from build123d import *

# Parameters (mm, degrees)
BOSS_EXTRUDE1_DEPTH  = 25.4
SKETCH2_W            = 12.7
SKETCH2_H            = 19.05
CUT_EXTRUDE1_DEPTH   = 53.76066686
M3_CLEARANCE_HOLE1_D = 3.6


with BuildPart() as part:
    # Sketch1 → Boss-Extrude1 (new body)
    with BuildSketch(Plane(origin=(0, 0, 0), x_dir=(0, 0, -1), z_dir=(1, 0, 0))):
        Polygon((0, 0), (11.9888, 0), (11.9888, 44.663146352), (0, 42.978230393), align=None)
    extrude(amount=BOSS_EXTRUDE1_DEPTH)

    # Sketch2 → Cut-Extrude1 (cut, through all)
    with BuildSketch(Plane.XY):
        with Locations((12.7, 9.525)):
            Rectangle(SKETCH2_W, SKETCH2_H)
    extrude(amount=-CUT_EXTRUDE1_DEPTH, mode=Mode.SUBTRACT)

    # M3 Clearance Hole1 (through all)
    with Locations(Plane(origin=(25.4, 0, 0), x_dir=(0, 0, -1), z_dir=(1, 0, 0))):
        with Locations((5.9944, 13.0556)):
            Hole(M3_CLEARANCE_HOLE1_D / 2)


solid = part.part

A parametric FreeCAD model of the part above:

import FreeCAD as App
import Part
import Sketcher
from FreeCAD import Vector
Q = App.Units.Quantity


def add_polygon(sketch, points):
    """Adds a closed chain of lines whose ends are joined by coincident constraints."""
    first, n = sketch.GeometryCount, len(points)
    for a, b in zip(points, points[1:] + points[:1]):
        sketch.addGeometry(Part.LineSegment(App.Vector(*a, 0), App.Vector(*b, 0)), False)
    for i in range(n):
        sketch.addConstraint(Sketcher.Constraint("Coincident", first + i, 2, first + (i + 1) % n, 1))

doc = App.newDocument("Part")
body = doc.addObject("PartDesign::Body", "Body")

# Sketch on YZ plane
sketch1 = body.newObject("Sketcher::SketchObject", "Sketch")
sketch1.AttachmentSupport = (doc.getObject("YZ_Plane"), [""])
sketch1.MapMode = "FlatFace"
add_polygon(sketch1, [(0, 0), (0, -12), (45, -12), (43, 0)])  # lines 0-3
sketch1.addConstraint(Sketcher.Constraint("Vertical", 0))
sketch1.addConstraint(Sketcher.Constraint("Horizontal", 1))
sketch1.addConstraint(Sketcher.Constraint("Horizontal", 3))
sketch1.addConstraint(Sketcher.Constraint("Coincident", 3, 2, -1, 1))
sketch1.addConstraint(Sketcher.Constraint("Angle", 2, Q("98 deg")))
sketch1.addConstraint(Sketcher.Constraint("DistanceY", 0, 2, 0, 1, Q("0.472 in")))
sketch1.addConstraint(Sketcher.Constraint("DistanceX", 3, 2, 3, 1, Q("42.97823 mm")))
pad1 = body.newObject("PartDesign::Pad", "Pad")
pad1.Profile = sketch1
pad1.Length = Q("1 in")

# Sketch on XY plane
sketch2 = body.newObject("Sketcher::SketchObject", "Sketch001")
sketch2.AttachmentSupport = (doc.getObject("XY_Plane"), [""])
sketch2.MapMode = "FlatFace"
add_polygon(sketch2, [(6, 19), (6, 0), (19, 0), (19, 19)])  # lines 0-3
sketch2.addConstraint(Sketcher.Constraint("Vertical", 0))
sketch2.addConstraint(Sketcher.Constraint("Horizontal", 1))
sketch2.addConstraint(Sketcher.Constraint("Vertical", 2))
sketch2.addConstraint(Sketcher.Constraint("Horizontal", 3))
sketch2.addConstraint(Sketcher.Constraint("PointOnObject", 0, 2, -1))
sketch2.addConstraint(Sketcher.Constraint("DistanceX", 1, 1, 1, 2, Q("0.5 in")))
sketch2.addConstraint(Sketcher.Constraint("DistanceY", 0, 2, 0, 1, Q("0.75 in")))
sketch2.addConstraint(Sketcher.Constraint("DistanceX", -1, 1, 0, 2, Q("0.25 in")))
pocket1 = body.newObject("PartDesign::Pocket", "Pocket")
pocket1.Profile = sketch2
pocket1.Type = "ThroughAll"

# Sketch on YZ plane
sketch3 = body.newObject("Sketcher::SketchObject", "Sketch002")
sketch3.AttachmentSupport = (doc.getObject("YZ_Plane"), [""])
sketch3.MapMode = "FlatFace"
sketch3.AttachmentOffset = App.Placement(Vector(0, 0, 1 * 25.4), App.Rotation())
sketch3.addGeometry(Part.Circle(Vector(13.1, -6, 0), Vector(0, 0, 1), 1.8), False)
sketch3.addConstraint(Sketcher.Constraint("Diameter", 0, Q("3.6 mm")))
sketch3.addConstraint(Sketcher.Constraint("DistanceX", -1, 1, 0, 3, Q("0.514 in")))
sketch3.addConstraint(Sketcher.Constraint("DistanceY", 0, 3, -1, 1, Q("0.236 in")))
doc.recompute()
hole = body.newObject("PartDesign::Hole", "Hole")
hole.Profile = sketch3
hole.ThreadType = "None"
hole.Diameter = 3.6
hole.DepthType = "ThroughAll"

doc.recompute()
